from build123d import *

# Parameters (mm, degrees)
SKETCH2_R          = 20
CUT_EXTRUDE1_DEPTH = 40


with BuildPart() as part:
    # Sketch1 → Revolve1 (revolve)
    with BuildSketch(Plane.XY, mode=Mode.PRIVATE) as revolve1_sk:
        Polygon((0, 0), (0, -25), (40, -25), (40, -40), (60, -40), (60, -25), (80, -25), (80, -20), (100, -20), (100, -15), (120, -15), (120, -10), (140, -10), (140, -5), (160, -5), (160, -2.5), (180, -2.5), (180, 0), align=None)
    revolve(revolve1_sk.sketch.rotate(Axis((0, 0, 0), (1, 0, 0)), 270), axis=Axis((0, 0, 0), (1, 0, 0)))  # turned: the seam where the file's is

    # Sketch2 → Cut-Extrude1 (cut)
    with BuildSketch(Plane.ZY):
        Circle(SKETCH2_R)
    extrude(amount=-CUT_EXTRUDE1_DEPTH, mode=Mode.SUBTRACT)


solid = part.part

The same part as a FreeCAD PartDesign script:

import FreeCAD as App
import Part
import Sketcher
from FreeCAD import Vector


def add_polygon(sketch, points):
    """Adds a closed chain of lines whose ends are joined by coincident constraints."""
    first, n = sketch.GeometryCount, len(points)
    for a, b in zip(points, points[1:] + points[:1]):
        sketch.addGeometry(Part.LineSegment(App.Vector(*a, 0), App.Vector(*b, 0)), False)
    for i in range(n):
        sketch.addConstraint(Sketcher.Constraint("Coincident", first + i, 2, first + (i + 1) % n, 1))

doc = App.newDocument("Part")
params = doc.addObject("Spreadsheet::Sheet", "Params")
for row, (alias, value) in enumerate([
    ("sketch1_width", "40 mm"),
    ("sketch1_width2", "20 mm"),
    ("sketch1_height", "25 mm"),
    ("sketch1_height2", "15 mm"),
    ("sketch1_height3", "5 mm"),
    ("revolution_angle", "360 deg"),
    ("sketch2_diameter", "40 mm"),
    ("pocket1_length", "40 mm"),
], start=1):
    params.set(f"A{row}", alias)
    params.set(f"B{row}", "=" + value)
    params.setAlias(f"B{row}", alias)

body = doc.addObject("PartDesign::Body", "Body")

# Sketch on XY plane
sketch1 = body.newObject("Sketcher::SketchObject", "Sketch")
sketch1.AttachmentSupport = (doc.getObject("XY_Plane"), [""])
sketch1.MapMode = "FlatFace"
add_polygon(sketch1, [(0, 0), (0, -25), (40, -25), (40, -40), (60, -40), (60, -25), (80, -25), (80, -20), (100, -20), (100, -15), (120, -15), (120, -10), (140, -10), (140, -5), (160, -5), (160, -2.5), (180, -2.5), (180, 0)])  # lines 0-17
sketch1.addConstraint([
    Sketcher.Constraint("Vertical", 0),
    Sketcher.Constraint("Horizontal", 1),
    Sketcher.Constraint("Vertical", 2),
    Sketcher.Constraint("Horizontal", 3),
    Sketcher.Constraint("Vertical", 4),
    Sketcher.Constraint("Horizontal", 5),
    Sketcher.Constraint("Vertical", 6),
    Sketcher.Constraint("Horizontal", 7),
    Sketcher.Constraint("Vertical", 8),
    Sketcher.Constraint("Horizontal", 9),
    Sketcher.Constraint("Vertical", 10),
    Sketcher.Constraint("Horizontal", 11),
    Sketcher.Constraint("Vertical", 12),
    Sketcher.Constraint("Horizontal", 13),
    Sketcher.Constraint("Vertical", 14),
    Sketcher.Constraint("Horizontal", 15),
    Sketcher.Constraint("Vertical", 16),
    Sketcher.Constraint("Horizontal", 17),
    Sketcher.Constraint("Coincident", 17, 2, -1, 1),
    Sketcher.Constraint("Horizontal", 1, 2, 4, 2),
    Sketcher.Constraint("Equal", 3, 5),
    Sketcher.Constraint("Equal", 5, 7),
    Sketcher.Constraint("Equal", 7, 9),
    Sketcher.Constraint("Equal", 9, 11),
    Sketcher.Constraint("Equal", 11, 13),
    Sketcher.Constraint("Equal", 13, 15),
    Sketcher.Constraint("Equal", 6, 8),
    Sketcher.Constraint("Equal", 8, 10),
    Sketcher.Constraint("Equal", 10, 12),
    Sketcher.Constraint("Equal", 14, 16),
    Sketcher.Constraint("DistanceX", 1, 1, 1, 2, 40.0),
    Sketcher.Constraint("DistanceX", 3, 1, 3, 2, 20.0),
    Sketcher.Constraint("DistanceY", 0, 2, 0, 1, 25.0),
    Sketcher.Constraint("DistanceY", 2, 2, 2, 1, 15.0),
    Sketcher.Constraint("DistanceY", 6, 1, 6, 2, 5.0),
])
sketch1.setExpression("Constraints[48]", "Params.sketch1_width")
sketch1.setExpression("Constraints[49]", "Params.sketch1_width2")
sketch1.setExpression("Constraints[50]", "Params.sketch1_height")
sketch1.setExpression("Constraints[51]", "Params.sketch1_height2")
sketch1.setExpression("Constraints[52]", "Params.sketch1_height3")
revolution = body.newObject("PartDesign::Revolution", "Revolution")
revolution.Profile = sketch1
revolution.ReferenceAxis = (sketch1, ["H_Axis"])
revolution.setExpression("Angle", "Params.revolution_angle")

# Sketch on YZ plane
sketch2 = body.newObject("Sketcher::SketchObject", "Sketch001")
sketch2.AttachmentSupport = (doc.getObject("YZ_Plane"), [""])
sketch2.MapMode = "FlatFace"
sketch2.addGeometry(Part.Circle(Vector(0, 0, 0), Vector(0, 0, 1), 20), False)
sketch2.addConstraint([
    Sketcher.Constraint("Coincident", 0, 3, -1, 1),
    Sketcher.Constraint("Diameter", 0, 40.0),
])
sketch2.setExpression("Constraints[1]", "Params.sketch2_diameter")
pocket1 = body.newObject("PartDesign::Pocket", "Pocket")
pocket1.Profile = sketch2
pocket1.setExpression("Length", "Params.pocket1_length")
pocket1.Reversed = True

doc.recompute()
